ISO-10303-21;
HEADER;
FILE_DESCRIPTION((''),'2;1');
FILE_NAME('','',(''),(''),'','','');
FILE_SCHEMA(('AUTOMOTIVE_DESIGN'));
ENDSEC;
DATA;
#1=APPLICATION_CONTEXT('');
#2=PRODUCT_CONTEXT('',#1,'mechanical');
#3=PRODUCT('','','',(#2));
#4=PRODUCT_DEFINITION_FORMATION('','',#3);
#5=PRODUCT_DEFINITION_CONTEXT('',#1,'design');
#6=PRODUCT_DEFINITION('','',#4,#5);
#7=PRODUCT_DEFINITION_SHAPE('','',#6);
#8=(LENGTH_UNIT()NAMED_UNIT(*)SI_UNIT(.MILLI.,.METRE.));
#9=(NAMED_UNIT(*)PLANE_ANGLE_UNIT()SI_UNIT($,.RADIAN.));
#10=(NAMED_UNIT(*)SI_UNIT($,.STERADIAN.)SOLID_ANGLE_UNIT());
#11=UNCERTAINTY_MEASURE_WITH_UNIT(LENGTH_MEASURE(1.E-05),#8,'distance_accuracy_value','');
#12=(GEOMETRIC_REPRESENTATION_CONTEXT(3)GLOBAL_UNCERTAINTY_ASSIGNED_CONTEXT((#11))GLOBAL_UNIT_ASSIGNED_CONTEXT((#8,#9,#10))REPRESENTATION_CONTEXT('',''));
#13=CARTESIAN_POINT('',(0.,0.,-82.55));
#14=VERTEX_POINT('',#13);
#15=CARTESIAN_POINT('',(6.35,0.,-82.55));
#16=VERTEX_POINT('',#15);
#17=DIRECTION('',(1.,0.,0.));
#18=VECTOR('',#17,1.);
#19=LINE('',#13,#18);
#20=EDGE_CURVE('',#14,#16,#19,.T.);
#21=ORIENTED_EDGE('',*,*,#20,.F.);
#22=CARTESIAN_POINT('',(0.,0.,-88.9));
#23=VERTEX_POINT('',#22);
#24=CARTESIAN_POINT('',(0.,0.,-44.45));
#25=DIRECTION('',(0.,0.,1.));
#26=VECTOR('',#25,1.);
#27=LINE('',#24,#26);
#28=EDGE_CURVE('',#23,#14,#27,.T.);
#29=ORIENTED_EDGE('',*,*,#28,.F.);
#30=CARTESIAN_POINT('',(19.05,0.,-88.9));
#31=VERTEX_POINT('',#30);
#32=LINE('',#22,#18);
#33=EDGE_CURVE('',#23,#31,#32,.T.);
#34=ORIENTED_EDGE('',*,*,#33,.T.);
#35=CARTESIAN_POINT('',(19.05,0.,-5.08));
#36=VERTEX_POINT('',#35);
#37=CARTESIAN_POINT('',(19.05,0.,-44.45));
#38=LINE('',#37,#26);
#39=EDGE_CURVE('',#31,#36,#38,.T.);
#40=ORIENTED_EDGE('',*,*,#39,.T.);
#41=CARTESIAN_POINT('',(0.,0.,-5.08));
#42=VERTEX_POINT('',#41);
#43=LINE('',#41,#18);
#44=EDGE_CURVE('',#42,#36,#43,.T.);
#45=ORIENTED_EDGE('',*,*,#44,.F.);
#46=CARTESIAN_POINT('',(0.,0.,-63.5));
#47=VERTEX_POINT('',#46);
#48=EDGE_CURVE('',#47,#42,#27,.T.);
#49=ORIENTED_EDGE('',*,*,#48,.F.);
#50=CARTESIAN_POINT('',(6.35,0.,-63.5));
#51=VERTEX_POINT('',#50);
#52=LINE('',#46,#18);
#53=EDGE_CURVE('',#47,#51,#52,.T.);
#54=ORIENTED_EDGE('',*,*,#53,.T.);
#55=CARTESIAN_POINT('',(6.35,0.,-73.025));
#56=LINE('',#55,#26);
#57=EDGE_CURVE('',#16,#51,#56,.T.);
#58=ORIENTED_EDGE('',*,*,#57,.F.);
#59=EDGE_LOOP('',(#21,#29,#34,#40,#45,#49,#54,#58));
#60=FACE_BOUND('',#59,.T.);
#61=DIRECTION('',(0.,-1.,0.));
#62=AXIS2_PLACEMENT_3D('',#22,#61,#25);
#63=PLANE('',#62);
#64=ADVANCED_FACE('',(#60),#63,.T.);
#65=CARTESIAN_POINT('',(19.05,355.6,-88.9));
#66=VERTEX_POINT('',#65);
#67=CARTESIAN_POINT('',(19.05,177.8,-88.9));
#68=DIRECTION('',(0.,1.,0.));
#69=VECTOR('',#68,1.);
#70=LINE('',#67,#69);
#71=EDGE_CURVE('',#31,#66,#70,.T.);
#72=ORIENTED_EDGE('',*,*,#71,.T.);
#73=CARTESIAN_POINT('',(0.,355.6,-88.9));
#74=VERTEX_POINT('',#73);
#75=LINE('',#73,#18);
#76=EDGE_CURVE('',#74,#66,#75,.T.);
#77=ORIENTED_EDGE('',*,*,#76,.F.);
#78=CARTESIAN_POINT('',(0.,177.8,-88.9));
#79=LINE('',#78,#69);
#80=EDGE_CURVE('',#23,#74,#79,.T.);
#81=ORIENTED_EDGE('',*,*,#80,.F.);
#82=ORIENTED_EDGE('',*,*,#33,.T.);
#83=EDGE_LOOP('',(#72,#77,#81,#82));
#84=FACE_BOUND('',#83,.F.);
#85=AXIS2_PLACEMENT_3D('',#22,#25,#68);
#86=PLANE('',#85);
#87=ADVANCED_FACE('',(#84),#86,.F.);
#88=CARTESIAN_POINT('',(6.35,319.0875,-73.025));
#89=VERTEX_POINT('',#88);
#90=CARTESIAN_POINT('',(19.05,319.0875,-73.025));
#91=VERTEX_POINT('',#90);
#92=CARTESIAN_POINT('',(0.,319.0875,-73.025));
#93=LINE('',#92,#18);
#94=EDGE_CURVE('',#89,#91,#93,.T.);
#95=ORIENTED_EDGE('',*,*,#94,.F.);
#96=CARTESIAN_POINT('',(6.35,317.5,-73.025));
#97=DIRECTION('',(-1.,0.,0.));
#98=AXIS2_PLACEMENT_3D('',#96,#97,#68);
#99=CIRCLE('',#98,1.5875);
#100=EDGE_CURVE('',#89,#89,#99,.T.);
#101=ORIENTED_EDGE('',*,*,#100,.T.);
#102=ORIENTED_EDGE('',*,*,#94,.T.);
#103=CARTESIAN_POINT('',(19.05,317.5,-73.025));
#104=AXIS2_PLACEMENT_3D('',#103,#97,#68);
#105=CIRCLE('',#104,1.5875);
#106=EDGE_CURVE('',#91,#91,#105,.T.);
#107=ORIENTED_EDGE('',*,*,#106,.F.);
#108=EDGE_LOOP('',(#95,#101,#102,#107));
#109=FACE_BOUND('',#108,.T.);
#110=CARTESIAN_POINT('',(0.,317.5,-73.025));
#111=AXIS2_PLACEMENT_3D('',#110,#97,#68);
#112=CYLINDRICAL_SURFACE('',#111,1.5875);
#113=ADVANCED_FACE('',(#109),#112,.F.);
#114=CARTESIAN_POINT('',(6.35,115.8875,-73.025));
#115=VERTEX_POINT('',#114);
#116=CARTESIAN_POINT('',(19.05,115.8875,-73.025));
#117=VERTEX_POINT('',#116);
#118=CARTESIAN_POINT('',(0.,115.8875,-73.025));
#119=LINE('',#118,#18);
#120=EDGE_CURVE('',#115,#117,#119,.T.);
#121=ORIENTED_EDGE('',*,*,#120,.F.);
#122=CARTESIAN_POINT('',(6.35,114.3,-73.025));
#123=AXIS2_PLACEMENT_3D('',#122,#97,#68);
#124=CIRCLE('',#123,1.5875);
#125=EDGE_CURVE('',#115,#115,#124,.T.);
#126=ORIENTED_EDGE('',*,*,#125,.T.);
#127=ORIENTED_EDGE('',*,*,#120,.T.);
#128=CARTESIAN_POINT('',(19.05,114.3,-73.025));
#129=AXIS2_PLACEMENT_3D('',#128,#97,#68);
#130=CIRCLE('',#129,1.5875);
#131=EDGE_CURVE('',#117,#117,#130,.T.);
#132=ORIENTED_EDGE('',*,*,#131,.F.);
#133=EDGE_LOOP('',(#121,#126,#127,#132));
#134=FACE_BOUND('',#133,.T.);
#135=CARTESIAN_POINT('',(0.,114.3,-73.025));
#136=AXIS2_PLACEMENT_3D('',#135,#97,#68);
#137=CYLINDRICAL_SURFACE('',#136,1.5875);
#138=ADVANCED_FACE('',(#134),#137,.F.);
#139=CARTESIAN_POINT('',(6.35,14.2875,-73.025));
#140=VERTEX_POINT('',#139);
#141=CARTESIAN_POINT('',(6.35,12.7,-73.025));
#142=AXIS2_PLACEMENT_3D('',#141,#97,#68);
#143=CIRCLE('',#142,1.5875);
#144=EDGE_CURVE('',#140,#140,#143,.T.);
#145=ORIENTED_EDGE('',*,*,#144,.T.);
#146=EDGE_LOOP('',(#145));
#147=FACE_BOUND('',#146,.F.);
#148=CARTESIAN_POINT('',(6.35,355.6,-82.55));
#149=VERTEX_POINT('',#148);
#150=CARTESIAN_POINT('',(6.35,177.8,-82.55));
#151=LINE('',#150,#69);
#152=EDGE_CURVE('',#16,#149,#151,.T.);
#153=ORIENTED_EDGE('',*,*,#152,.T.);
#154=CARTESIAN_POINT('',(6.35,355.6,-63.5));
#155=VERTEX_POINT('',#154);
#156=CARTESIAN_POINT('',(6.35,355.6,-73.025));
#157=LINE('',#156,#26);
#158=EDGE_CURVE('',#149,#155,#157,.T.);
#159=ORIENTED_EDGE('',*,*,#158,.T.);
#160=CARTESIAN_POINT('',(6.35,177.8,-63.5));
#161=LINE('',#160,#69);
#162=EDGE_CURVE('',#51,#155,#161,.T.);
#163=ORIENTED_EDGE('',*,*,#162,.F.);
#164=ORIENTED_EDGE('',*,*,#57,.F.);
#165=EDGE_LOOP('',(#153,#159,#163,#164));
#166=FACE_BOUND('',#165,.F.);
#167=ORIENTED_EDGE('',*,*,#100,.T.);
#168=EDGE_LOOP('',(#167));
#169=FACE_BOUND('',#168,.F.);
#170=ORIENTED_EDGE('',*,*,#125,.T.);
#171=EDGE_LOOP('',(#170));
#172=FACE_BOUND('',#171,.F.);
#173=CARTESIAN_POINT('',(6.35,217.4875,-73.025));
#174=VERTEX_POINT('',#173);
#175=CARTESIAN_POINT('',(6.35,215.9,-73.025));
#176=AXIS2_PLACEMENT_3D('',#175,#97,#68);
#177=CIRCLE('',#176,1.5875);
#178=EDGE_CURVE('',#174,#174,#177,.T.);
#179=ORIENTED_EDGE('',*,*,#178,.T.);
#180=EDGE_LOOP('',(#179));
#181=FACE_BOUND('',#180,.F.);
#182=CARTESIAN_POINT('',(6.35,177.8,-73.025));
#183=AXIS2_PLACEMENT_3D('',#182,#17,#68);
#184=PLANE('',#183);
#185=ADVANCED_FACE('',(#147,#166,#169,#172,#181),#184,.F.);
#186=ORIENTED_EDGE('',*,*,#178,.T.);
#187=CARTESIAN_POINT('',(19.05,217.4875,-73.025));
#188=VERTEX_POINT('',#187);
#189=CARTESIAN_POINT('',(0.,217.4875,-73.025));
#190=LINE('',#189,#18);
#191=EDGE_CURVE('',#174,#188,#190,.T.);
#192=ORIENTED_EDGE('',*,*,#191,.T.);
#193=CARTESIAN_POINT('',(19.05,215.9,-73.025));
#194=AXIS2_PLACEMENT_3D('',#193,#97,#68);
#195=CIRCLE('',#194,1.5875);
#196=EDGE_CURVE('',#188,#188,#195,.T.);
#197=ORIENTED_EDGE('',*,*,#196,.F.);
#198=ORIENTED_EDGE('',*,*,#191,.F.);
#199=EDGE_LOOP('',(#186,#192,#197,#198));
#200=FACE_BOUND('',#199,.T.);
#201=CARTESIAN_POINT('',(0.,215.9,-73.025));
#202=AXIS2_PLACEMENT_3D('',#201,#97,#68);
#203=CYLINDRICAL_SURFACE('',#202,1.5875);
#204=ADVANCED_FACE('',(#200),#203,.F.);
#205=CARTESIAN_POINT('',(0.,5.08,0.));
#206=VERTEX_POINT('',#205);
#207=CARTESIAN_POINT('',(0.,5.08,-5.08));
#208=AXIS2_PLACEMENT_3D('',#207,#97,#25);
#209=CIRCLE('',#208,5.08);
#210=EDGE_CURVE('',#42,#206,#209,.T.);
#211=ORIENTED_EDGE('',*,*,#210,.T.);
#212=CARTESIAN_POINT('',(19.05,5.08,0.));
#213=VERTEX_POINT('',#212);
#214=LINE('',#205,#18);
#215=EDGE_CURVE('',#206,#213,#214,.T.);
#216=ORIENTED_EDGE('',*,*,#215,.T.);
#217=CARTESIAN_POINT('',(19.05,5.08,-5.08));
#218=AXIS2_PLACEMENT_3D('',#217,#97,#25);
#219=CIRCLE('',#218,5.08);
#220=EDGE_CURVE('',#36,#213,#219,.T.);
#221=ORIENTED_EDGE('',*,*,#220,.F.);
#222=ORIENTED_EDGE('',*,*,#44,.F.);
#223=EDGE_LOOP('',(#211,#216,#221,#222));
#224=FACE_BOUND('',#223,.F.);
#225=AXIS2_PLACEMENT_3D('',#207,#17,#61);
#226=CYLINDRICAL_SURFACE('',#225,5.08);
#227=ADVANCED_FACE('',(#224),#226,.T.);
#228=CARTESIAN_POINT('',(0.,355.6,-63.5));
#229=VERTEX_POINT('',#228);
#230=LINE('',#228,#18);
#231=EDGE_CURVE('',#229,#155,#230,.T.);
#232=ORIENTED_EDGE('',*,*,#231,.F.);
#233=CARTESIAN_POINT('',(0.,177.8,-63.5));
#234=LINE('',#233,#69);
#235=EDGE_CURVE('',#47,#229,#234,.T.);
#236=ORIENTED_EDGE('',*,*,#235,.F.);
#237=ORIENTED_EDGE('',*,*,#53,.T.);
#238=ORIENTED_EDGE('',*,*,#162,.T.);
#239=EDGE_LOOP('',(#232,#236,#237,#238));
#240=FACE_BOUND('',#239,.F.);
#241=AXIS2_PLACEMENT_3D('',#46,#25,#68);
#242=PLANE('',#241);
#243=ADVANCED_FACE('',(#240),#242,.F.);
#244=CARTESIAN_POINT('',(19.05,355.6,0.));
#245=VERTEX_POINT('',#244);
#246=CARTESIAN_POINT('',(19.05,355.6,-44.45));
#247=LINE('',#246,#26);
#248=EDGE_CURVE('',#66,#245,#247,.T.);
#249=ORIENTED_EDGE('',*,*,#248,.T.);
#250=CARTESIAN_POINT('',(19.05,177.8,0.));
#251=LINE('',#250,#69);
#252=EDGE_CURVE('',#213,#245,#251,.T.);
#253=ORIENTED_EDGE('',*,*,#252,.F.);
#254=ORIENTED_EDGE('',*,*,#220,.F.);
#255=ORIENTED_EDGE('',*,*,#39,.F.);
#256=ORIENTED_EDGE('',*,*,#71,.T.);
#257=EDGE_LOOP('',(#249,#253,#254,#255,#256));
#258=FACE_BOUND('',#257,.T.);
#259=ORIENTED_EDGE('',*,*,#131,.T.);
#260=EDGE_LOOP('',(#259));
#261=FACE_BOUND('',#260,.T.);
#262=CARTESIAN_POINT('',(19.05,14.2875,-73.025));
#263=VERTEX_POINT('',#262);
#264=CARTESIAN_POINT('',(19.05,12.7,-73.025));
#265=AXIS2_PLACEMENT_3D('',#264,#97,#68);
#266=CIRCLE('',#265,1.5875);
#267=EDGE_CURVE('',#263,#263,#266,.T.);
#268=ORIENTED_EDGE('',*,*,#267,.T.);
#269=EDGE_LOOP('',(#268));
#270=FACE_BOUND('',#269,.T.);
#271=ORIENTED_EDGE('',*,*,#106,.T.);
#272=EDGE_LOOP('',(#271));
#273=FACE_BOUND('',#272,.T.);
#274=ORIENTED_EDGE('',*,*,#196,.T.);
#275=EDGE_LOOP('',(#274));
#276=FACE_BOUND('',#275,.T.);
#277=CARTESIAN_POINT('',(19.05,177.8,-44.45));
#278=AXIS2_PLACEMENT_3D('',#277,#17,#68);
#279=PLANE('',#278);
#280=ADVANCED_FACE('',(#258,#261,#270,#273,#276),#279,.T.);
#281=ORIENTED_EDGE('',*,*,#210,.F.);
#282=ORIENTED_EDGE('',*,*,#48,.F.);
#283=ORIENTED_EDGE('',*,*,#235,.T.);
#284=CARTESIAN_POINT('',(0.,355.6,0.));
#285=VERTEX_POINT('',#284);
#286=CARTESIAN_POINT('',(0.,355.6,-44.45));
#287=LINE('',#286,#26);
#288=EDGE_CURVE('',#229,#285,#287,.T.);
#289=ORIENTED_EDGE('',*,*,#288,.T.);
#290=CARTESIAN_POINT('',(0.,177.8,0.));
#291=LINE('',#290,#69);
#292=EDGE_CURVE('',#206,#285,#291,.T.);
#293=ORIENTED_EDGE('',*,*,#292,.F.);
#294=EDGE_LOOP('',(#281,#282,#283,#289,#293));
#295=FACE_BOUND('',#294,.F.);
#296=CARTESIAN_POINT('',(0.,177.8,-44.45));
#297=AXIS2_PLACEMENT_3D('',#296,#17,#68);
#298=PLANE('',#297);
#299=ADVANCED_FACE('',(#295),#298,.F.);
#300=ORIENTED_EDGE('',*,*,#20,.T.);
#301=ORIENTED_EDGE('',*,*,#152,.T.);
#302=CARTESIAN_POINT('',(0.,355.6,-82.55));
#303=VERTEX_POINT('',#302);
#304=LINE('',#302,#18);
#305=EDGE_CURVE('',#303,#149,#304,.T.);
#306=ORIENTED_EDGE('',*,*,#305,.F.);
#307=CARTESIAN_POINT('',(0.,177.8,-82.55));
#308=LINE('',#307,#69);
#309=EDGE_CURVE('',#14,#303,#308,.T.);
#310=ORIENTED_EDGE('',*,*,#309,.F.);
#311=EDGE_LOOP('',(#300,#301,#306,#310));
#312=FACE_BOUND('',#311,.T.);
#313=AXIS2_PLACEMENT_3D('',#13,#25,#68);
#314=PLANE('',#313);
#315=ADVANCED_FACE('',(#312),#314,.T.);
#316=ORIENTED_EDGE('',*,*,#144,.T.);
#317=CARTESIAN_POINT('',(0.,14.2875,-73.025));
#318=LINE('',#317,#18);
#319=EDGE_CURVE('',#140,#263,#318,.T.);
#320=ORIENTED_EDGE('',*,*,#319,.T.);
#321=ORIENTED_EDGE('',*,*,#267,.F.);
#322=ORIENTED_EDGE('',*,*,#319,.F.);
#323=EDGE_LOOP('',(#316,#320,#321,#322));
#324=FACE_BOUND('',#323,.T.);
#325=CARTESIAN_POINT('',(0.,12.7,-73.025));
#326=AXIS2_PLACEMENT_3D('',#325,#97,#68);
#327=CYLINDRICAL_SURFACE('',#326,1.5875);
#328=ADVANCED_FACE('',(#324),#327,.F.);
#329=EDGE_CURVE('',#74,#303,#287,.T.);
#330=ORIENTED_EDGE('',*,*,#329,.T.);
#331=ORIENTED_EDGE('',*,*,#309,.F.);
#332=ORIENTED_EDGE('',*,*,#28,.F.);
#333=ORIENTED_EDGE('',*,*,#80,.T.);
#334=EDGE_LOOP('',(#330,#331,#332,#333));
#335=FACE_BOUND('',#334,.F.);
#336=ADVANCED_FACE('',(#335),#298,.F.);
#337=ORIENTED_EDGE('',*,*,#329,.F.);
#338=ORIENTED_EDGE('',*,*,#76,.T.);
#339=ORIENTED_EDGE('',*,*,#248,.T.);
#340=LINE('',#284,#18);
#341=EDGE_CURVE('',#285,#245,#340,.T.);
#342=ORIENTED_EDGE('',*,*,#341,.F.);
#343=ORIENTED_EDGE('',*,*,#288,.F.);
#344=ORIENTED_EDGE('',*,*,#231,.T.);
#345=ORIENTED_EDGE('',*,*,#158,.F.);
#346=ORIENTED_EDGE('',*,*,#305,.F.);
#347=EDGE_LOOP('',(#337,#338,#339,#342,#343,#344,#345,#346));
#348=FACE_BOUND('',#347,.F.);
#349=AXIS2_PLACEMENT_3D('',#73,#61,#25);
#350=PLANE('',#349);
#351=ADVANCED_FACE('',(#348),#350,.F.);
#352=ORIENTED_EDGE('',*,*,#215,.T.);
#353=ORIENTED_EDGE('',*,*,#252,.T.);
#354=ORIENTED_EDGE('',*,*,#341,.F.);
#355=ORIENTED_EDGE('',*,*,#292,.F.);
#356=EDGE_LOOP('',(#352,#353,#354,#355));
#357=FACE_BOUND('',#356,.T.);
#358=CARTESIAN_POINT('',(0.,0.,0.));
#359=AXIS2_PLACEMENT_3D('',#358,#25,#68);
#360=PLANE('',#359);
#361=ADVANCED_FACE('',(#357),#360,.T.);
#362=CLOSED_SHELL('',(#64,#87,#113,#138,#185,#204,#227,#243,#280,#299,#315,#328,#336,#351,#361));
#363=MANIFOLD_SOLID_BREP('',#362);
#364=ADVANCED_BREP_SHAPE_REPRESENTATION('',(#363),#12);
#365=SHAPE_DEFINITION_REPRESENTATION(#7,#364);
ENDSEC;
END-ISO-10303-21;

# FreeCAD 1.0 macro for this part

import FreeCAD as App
import Part
import Sketcher
from FreeCAD import Vector
Q = App.Units.Quantity


def edges_at(feature, points):
    """Names of the edges that pass closest to the given points."""
    edges = feature.Shape.Edges
    near = lambda p: min(range(len(edges)), key=lambda i: edges[i].distToShape(Part.Vertex(*p))[0])
    return sorted({f"Edge{near(p) + 1}" for p in points})


def add_polygon(sketch, points):
    """Adds a closed chain of lines whose ends are joined by coincident constraints."""
    first, n = sketch.GeometryCount, len(points)
    for a, b in zip(points, points[1:] + points[:1]):
        sketch.addGeometry(Part.LineSegment(App.Vector(*a, 0), App.Vector(*b, 0)), False)
    for i in range(n):
        sketch.addConstraint(Sketcher.Constraint("Coincident", first + i, 2, first + (i + 1) % n, 1))

doc = App.newDocument("Part")
body = doc.addObject("PartDesign::Body", "Body")

sketch1 = body.newObject("Sketcher::SketchObject", "Sketch")
sketch1.AttachmentSupport = (doc.getObject("YZ_Plane"), [""])
sketch1.MapMode = "FlatFace"
add_polygon(sketch1, [(0, 0), (0, -88.9), (355.6, -88.9), (355.6, 0)])
sketch1.addConstraint([
    Sketcher.Constraint("Vertical", 0),
    Sketcher.Constraint("Horizontal", 1),
    Sketcher.Constraint("Vertical", 2),
    Sketcher.Constraint("Horizontal", 3),
    Sketcher.Constraint("Coincident", 3, 2, -1, 1),
    Sketcher.Constraint("DistanceX", 1, 1, 1, 2, Q("14 in")),
    Sketcher.Constraint("DistanceY", 0, 2, 0, 1, Q("3.5 in")),
])
pad1 = body.newObject("PartDesign::Pad", "Pad")
pad1.Profile = sketch1
pad1.Length = Q("0.75 in")
doc.recompute()

fillet = body.newObject("PartDesign::Fillet", "Fillet")
fillet.Base = (pad1, edges_at(pad1, [(9.525, 0, 0)]))
fillet.Radius = Q("0.2 in")

sketch2 = body.newObject("Sketcher::SketchObject", "Sketch001")
sketch2.AttachmentSupport = (doc.getObject("YZ_Plane"), [""])
sketch2.MapMode = "FlatFace"
add_polygon(sketch2, [(0, -63.5), (0, -82.55), (355.6, -82.55), (355.6, -63.5)])
sketch2.addConstraint([
    Sketcher.Constraint("Vertical", 0),
    Sketcher.Constraint("Horizontal", 1),
    Sketcher.Constraint("Vertical", 2),
    Sketcher.Constraint("Horizontal", 3),
    Sketcher.Constraint("PointOnObject", 0, 2, -2),
    Sketcher.Constraint("DistanceX", 1, 1, 1, 2, Q("14 in")),
    Sketcher.Constraint("DistanceY", 0, 2, 0, 1, Q("0.75 in")),
    Sketcher.Constraint("DistanceY", 2, 2, -1, 1, Q("2.5 in")),
])
pocket1 = body.newObject("PartDesign::Pocket", "Pocket")
pocket1.Profile = sketch2
pocket1.Length = Q("0.25 in")
pocket1.Reversed = True

sketch3 = body.newObject("Sketcher::SketchObject", "Sketch002")
sketch3.AttachmentSupport = (doc.getObject("YZ_Plane"), [""])
sketch3.MapMode = "FlatFace"
sketch3.addGeometry([
    Part.Circle(Vector(12.7, -73.025, 0), Vector(0, 0, 1), 1.5875),
    Part.Circle(Vector(114.3, -73.025, 0), Vector(0, 0, 1), 1.5875),
    Part.Circle(Vector(215.9, -73.025, 0), Vector(0, 0, 1), 1.5875),
    Part.Circle(Vector(317.5, -73.025, 0), Vector(0, 0, 1), 1.5875),
], False)
sketch3.addConstraint([
    Sketcher.Constraint("Equal", 0, 1),
    Sketcher.Constraint("Equal", 1, 2),
    Sketcher.Constraint("Equal", 2, 3),
    Sketcher.Constraint("Horizontal", 0, 3, 1, 3),
    Sketcher.Constraint("Horizontal", 1, 3, 2, 3),
    Sketcher.Constraint("Horizontal", 2, 3, 3, 3),
    Sketcher.Constraint("Diameter", 0, Q("0.125 in")),
    Sketcher.Constraint("DistanceX", 0, 3, 1, 3, Q("4 in")),
    Sketcher.Constraint("DistanceX", 1, 3, 2, 3, Q("4 in")),
    Sketcher.Constraint("DistanceX", 2, 3, 3, 3, Q("4 in")),
    Sketcher.Constraint("DistanceX", -1, 1, 0, 3, Q("0.5 in")),
    Sketcher.Constraint("DistanceY", 0, 3, -1, 1, Q("2.875 in")),
])
pocket2 = body.newObject("PartDesign::Pocket", "Pocket001")
pocket2.Profile = sketch3
pocket2.Type = "ThroughAll"
pocket2.Reversed = True

doc.recompute()
